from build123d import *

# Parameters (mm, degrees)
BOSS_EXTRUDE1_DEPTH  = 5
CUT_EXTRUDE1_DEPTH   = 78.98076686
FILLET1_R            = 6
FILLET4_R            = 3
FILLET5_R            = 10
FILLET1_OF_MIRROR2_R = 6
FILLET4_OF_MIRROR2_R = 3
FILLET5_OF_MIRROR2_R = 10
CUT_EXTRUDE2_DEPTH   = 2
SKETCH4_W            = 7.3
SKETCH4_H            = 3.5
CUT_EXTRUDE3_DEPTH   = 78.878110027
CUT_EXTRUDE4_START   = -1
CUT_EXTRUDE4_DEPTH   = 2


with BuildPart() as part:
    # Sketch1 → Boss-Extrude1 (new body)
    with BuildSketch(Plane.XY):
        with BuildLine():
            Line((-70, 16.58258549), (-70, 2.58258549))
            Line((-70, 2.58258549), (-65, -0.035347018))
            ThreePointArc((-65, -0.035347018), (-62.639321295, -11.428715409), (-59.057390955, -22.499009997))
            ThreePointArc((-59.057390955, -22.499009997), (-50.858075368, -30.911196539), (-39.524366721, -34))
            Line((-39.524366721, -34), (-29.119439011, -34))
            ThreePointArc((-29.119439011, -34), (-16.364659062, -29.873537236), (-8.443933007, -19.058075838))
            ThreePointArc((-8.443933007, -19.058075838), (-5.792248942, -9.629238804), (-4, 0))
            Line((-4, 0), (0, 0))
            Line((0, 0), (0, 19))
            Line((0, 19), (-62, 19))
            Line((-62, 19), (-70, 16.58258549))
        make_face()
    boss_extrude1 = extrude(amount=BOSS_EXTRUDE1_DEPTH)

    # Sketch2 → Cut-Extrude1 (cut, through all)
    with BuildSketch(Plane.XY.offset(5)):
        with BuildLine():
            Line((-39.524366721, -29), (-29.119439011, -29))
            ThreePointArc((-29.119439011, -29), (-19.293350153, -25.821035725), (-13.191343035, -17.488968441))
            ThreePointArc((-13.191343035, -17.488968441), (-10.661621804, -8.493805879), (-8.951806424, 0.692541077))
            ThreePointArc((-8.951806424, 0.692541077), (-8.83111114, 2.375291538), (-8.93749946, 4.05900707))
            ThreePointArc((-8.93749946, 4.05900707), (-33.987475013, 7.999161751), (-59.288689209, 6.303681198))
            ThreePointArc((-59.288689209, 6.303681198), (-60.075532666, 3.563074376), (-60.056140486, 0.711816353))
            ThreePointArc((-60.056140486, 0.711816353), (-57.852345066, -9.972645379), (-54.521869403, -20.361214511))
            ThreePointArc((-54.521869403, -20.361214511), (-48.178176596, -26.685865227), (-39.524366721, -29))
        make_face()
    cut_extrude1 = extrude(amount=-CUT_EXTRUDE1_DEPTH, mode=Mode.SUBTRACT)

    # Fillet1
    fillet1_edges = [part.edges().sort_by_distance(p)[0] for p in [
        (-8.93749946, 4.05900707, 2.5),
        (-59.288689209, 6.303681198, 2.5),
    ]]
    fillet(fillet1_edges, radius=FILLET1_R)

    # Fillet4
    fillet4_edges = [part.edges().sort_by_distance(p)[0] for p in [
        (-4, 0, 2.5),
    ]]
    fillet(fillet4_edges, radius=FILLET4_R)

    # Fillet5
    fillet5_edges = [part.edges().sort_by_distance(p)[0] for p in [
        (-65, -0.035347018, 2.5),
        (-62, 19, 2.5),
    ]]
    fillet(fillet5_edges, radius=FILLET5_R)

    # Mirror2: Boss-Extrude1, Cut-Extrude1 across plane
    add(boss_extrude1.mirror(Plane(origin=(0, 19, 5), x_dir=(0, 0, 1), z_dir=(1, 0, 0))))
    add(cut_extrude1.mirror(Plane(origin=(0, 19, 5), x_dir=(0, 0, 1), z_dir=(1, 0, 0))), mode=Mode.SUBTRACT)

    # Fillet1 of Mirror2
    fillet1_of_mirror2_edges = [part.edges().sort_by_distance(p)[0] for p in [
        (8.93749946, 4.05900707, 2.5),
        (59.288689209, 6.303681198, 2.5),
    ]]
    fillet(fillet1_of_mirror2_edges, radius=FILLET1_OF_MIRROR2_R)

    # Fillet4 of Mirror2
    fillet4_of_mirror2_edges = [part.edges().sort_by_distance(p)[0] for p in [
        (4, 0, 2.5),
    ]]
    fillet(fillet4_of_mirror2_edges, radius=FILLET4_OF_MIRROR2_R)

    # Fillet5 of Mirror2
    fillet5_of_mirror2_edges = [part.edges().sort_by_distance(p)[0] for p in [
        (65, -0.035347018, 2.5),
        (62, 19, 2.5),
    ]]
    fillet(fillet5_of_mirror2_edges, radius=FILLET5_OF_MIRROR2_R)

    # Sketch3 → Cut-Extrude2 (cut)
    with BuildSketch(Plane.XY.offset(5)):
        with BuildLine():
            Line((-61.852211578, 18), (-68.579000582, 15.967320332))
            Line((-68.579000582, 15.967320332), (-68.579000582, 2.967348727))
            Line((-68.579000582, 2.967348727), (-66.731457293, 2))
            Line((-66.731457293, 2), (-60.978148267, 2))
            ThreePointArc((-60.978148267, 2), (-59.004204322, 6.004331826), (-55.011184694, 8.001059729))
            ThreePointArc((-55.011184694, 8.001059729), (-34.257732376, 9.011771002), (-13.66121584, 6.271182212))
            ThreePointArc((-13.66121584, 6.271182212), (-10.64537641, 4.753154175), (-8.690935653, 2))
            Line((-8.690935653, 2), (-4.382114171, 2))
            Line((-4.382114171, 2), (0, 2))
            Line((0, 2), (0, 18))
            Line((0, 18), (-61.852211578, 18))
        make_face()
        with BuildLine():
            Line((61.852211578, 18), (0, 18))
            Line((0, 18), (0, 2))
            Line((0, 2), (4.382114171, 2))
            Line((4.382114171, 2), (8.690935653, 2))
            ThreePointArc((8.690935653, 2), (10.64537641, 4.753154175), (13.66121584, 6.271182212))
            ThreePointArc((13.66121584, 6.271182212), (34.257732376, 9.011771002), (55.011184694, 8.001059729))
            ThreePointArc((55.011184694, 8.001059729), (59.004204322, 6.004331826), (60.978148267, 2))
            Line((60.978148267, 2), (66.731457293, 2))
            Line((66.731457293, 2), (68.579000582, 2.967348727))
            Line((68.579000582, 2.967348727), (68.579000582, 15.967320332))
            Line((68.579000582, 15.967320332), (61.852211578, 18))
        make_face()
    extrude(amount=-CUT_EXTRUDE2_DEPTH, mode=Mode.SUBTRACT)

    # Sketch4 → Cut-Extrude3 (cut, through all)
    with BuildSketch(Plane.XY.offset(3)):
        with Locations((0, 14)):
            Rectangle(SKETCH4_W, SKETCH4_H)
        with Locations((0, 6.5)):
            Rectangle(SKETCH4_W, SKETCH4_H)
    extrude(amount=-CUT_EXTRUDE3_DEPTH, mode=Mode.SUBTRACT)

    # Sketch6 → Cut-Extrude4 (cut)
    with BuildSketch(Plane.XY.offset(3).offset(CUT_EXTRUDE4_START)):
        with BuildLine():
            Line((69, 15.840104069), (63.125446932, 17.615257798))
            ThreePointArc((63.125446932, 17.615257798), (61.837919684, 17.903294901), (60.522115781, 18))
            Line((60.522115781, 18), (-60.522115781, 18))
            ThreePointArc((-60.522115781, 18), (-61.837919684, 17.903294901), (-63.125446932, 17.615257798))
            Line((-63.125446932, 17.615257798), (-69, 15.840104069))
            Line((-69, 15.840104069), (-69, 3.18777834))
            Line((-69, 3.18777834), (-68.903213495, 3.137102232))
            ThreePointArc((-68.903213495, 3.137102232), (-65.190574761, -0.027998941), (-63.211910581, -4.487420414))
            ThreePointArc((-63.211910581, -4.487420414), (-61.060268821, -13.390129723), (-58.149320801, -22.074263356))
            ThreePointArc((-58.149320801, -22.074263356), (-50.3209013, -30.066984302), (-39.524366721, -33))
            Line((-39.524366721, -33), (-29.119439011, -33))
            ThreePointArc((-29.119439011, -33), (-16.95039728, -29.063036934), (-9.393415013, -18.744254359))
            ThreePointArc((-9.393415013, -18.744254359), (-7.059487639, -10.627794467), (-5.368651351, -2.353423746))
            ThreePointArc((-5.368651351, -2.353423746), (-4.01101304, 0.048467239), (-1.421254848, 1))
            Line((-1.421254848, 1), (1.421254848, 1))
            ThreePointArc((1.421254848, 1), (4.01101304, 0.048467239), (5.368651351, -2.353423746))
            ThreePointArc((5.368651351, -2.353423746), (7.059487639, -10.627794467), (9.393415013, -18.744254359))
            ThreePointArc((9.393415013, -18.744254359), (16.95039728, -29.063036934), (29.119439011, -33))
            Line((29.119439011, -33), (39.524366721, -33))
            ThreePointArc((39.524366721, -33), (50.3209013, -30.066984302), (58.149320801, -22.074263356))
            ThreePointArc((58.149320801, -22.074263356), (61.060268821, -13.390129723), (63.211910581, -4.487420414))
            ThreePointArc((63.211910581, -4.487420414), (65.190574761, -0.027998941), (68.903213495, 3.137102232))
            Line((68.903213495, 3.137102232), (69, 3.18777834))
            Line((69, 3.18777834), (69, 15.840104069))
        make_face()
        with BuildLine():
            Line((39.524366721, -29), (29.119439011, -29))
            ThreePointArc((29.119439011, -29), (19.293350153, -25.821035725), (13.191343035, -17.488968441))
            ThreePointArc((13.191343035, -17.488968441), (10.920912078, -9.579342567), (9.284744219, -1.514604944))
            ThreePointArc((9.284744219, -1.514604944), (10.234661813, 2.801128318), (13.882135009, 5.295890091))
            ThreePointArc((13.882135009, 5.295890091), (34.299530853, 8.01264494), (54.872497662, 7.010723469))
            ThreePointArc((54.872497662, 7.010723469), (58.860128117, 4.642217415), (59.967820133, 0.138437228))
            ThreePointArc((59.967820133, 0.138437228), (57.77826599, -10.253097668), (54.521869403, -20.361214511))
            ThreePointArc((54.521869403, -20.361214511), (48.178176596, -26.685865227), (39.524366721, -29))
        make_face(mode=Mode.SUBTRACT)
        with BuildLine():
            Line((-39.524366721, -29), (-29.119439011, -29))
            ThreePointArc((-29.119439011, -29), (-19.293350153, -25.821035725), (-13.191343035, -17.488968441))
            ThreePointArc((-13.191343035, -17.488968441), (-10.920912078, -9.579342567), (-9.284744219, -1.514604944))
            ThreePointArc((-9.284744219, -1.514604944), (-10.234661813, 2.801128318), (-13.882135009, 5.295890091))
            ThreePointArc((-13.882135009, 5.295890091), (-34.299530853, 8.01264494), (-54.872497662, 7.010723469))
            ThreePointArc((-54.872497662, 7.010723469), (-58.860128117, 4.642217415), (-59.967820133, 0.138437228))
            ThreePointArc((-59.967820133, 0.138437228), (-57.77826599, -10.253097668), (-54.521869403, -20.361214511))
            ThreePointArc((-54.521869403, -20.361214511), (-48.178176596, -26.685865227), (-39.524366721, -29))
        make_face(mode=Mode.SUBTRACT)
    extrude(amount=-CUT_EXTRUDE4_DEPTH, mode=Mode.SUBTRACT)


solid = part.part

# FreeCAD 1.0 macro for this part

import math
import FreeCAD as App
import Part
import Sketcher

V = App.Vector


def edges_at(feature, points):
    """Names of the edges that pass closest to the given points."""
    edges = feature.Shape.Edges
    near = lambda p: min(range(len(edges)), key=lambda i: edges[i].distToShape(Part.Vertex(*p))[0])
    return sorted({f"Edge{near(p) + 1}" for p in points})


def add_polygon(sketch, points):
    """Adds a closed chain of lines whose ends are joined by coincident constraints."""
    first, n = sketch.GeometryCount, len(points)
    for a, b in zip(points, points[1:] + points[:1]):
        sketch.addGeometry(Part.LineSegment(App.Vector(*a, 0), App.Vector(*b, 0)), False)
    for i in range(n):
        sketch.addConstraint(Sketcher.Constraint("Coincident", first + i, 2, first + (i + 1) % n, 1))

doc = App.newDocument("Part")
body = doc.addObject("PartDesign::Body", "Body")

sketch1 = doc.addObject("Sketcher::SketchObject", "Sketch")
body.addObject(sketch1)
sketch1.AttachmentSupport = (doc.XY_Plane, [""])
sketch1.MapMode = "FlatFace"
sketch1.addGeometry([
    Part.LineSegment(V(-70, 16.582585, 0), V(-70, 2.582585, 0)),
    Part.LineSegment(V(-70, 2.582585, 0), V(-65, -0.035347, 0)),
    Part.ArcOfCircle(Part.Circle(V(40.964964, 15.979093, 0), V(0, 0, 1), 107.168259), math.radians(-171.405949), math.radians(-158.958514)),
    Part.ArcOfCircle(Part.Circle(V(-39.524367, -11.662279, 0), V(0, 0, 1), 22.337721), math.radians(-150.978915), math.radians(-90)),
    Part.LineSegment(V(-39.524367, -34, 0), V(-29.119439, -34, 0)),
    Part.ArcOfCircle(Part.Circle(V(-29.119439, -12.224436, 0), V(0, 0, 1), 21.775564), math.radians(-90), math.radians(-18.289682)),
    Part.ArcOfCircle(Part.Circle(V(-111.660881, 15.057047, 0), V(0, 0, 1), 108.708693), math.radians(-18.289682), math.radians(-7.961532)),
    Part.LineSegment(V(-4, 0, 0), V(0, 0, 0)),
    Part.LineSegment(V(0, 0, 0), V(0, 19, 0)),
    Part.LineSegment(V(0, 19, 0), V(-62, 19, 0)),
    Part.LineSegment(V(-62, 19, 0), V(-70, 16.582585, 0)),
], False)
sketch1.addConstraint([
    Sketcher.Constraint("Coincident", 0, 2, 1, 1),
    Sketcher.Constraint("Coincident", 1, 2, 2, 1),
    Sketcher.Constraint("Coincident", 2, 2, 3, 1),
    Sketcher.Constraint("Tangent", 3, 2, 4, 1),
    Sketcher.Constraint("Tangent", 4, 2, 5, 1),
    Sketcher.Constraint("Tangent", 5, 2, 6, 1),
    Sketcher.Constraint("Coincident", 6, 2, 7, 1),
    Sketcher.Constraint("Coincident", 7, 2, 8, 1),
    Sketcher.Constraint("Coincident", 8, 2, 9, 1),
    Sketcher.Constraint("Coincident", 9, 2, 10, 1),
    Sketcher.Constraint("Coincident", 10, 2, 0, 1),
    Sketcher.Constraint("Vertical", 0),
    Sketcher.Constraint("Horizontal", 4),
    Sketcher.Constraint("Horizontal", 7),
    Sketcher.Constraint("Vertical", 8),
    Sketcher.Constraint("Horizontal", 9),
    Sketcher.Constraint("Coincident", 7, 2, -1, 1),
    Sketcher.Constraint("DistanceX", 7, 1, 7, 2, 4.0),
    Sketcher.Constraint("DistanceX", 9, 2, 9, 1, 62.0),
    Sketcher.Constraint("DistanceY", 0, 2, 0, 1, 14.0),
    Sketcher.Constraint("DistanceY", 8, 1, 8, 2, 19.0),
    Sketcher.Constraint("DistanceX", 0, 2, -1, 1, 70.0),
    Sketcher.Constraint("DistanceX", 1, 2, -1, 1, 65.0),
    Sketcher.Constraint("DistanceY", 3, 2, -1, 1, 34.0),
    Sketcher.Constraint("Radius", 2, 107.168259),
    Sketcher.Constraint("Radius", 3, 22.337721),
    Sketcher.Constraint("Radius", 5, 21.775564),
    Sketcher.Constraint("Radius", 6, 108.708693),
    Sketcher.Constraint("DistanceX", 4, 1, 4, 2, 10.404928),
    Sketcher.Constraint("DistanceX", 5, 3, -1, 1, 29.119439),
    Sketcher.Constraint("DistanceX", 2, 2, -1, 1, 59.057391),
    Sketcher.Constraint("DistanceX", 3, 3, 2, 3, 80.48933),
    Sketcher.Constraint("DistanceY", 5, 3, 0, 2, 14.807022),
])
pad1 = doc.addObject("PartDesign::Pad", "Pad")
body.addObject(pad1)
pad1.Profile = sketch1
pad1.Length = 5

sketch2 = doc.addObject("Sketcher::SketchObject", "Sketch001")
body.addObject(sketch2)
sketch2.AttachmentSupport = (doc.XY_Plane, [""])
sketch2.MapMode = "FlatFace"
sketch2.AttachmentOffset = App.Placement(V(0, 0, 5), App.Rotation())
sketch2.addGeometry([
    Part.LineSegment(V(-39.524367, -29, 0), V(-29.119439, -29, 0)),
    Part.ArcOfCircle(Part.Circle(V(-29.119439, -12.224436, 0), V(0, 0, 1), 16.775564), math.radians(-90), math.radians(-18.289682)),
    Part.ArcOfCircle(Part.Circle(V(-111.660881, 15.057047, 0), V(0, 0, 1), 103.708693), math.radians(-18.289682), math.radians(-7.961532)),
    Part.ArcOfCircle(Part.Circle(V(-21.364667, 2.428557, 0), V(0, 0, 1), 12.533669), math.radians(-7.961532), math.radians(7.474539)),
    Part.ArcOfCircle(Part.Circle(V(-39.064006, -105.874545, 0), V(0, 0, 1), 113.986807), math.radians(74.674745), math.radians(100.220102)),
    Part.ArcOfCircle(Part.Circle(V(-50.178002, 2.204695, 0), V(0, 0, 1), 9.990311), math.radians(155.776561), math.radians(188.594051)),
    Part.ArcOfCircle(Part.Circle(V(40.964964, 15.979093, 0), V(0, 0, 1), 102.168259), math.radians(-171.405949), math.radians(-159.164214)),
    Part.ArcOfCircle(Part.Circle(V(-39.524367, -11.662279, 0), V(0, 0, 1), 17.337721), math.radians(-149.88517), math.radians(-90)),
], False)
sketch2.addConstraint([
    Sketcher.Constraint("Coincident", 0, 2, 1, 1),
    Sketcher.Constraint("Coincident", 1, 2, 2, 1),
    Sketcher.Constraint("Coincident", 2, 2, 3, 1),
    Sketcher.Constraint("Coincident", 3, 2, 4, 1),
    Sketcher.Constraint("Coincident", 4, 2, 5, 1),
    Sketcher.Constraint("Coincident", 5, 2, 6, 1),
    Sketcher.Constraint("Coincident", 6, 2, 7, 1),
    Sketcher.Constraint("Coincident", 7, 2, 0, 1),
    Sketcher.Constraint("Horizontal", 0),
    Sketcher.Constraint("DistanceY", 0, 2, -1, 1, 29.0),
    Sketcher.Constraint("Radius", 3, 12.533669),
    Sketcher.Constraint("Radius", 5, 9.990311),
    Sketcher.Constraint("Radius", 6, 102.168259),
    Sketcher.Constraint("Radius", 7, 17.337721),
    Sketcher.Constraint("DistanceX", 5, 3, -1, 1, 50.178002),
    Sketcher.Constraint("Radius", 1, 16.775564),
    Sketcher.Constraint("Radius", 2, 103.708693),
    Sketcher.Constraint("Radius", 4, 113.986807),
    Sketcher.Constraint("DistanceX", 3, 2, -1, 1, 8.937499),
    Sketcher.Constraint("DistanceX", 7, 3, 3, 3, 18.1597),
    Sketcher.Constraint("DistanceX", 5, 2, 1, 3, 30.936701),
    Sketcher.Constraint("DistanceX", 0, 1, 0, 2, 10.404928),
    Sketcher.Constraint("DistanceX", 1, 3, -1, 1, 29.119439),
    Sketcher.Constraint("DistanceX", 2, 3, -1, 1, 111.660881),
    Sketcher.Constraint("DistanceX", 0, 2, -1, 1, 29.119439),
    Sketcher.Constraint("DistanceY", 1, 2, -1, 1, 17.488968),
    Sketcher.Constraint("DistanceY", -1, 1, 2, 2, 0.692541),
    Sketcher.Constraint("DistanceX", 4, 2, -1, 1, 59.288689),
    Sketcher.Constraint("DistanceY", -1, 1, 4, 2, 6.303681),
    Sketcher.Constraint("DistanceX", 6, 2, -1, 1, 54.521869),
    Sketcher.Constraint("DistanceX", 1, 3, 3, 3, 7.754772),
])
pocket1 = doc.addObject("PartDesign::Pocket", "Pocket")
body.addObject(pocket1)
pocket1.Profile = sketch2
pocket1.Type = "ThroughAll"
doc.recompute()

fillet = doc.addObject("PartDesign::Fillet", "Fillet")
body.addObject(fillet)
fillet.Base = (pocket1, edges_at(pocket1, [(-8.937, 4.059, 2.5), (-59.289, 6.304, 2.5)]))
fillet.Radius = 6
doc.recompute()

fillet2 = doc.addObject("PartDesign::Fillet", "Fillet001")
body.addObject(fillet2)
fillet2.Base = (fillet, edges_at(fillet, [(-4, 0, 2.5)]))
fillet2.Radius = 3
doc.recompute()

fillet3 = doc.addObject("PartDesign::Fillet", "Fillet002")
body.addObject(fillet3)
fillet3.Base = (fillet2, edges_at(fillet2, [(-65, -0.035, 2.5), (-62, 19, 2.5)]))
fillet3.Radius = 10
doc.recompute()

mirrored = doc.addObject("PartDesign::Mirrored", "Mirrored")
body.addObject(mirrored)
mirrored.Originals = [pad1, pocket1]
mirrored.MirrorPlane = (doc.YZ_Plane, [""])
body.Tip = mirrored
doc.recompute()

fillet4 = doc.addObject("PartDesign::Fillet", "Fillet003")
body.addObject(fillet4)
fillet4.Base = (mirrored, edges_at(mirrored, [(8.937, 4.059, 2.5), (59.289, 6.304, 2.5)]))
fillet4.Radius = 6
doc.recompute()

fillet5 = doc.addObject("PartDesign::Fillet", "Fillet004")
body.addObject(fillet5)
fillet5.Base = (fillet4, edges_at(fillet4, [(4, 0, 2.5)]))
fillet5.Radius = 3
doc.recompute()

fillet6 = doc.addObject("PartDesign::Fillet", "Fillet005")
body.addObject(fillet6)
fillet6.Base = (fillet5, edges_at(fillet5, [(65, -0.035, 2.5), (62, 19, 2.5)]))
fillet6.Radius = 10

sketch3 = doc.addObject("Sketcher::SketchObject", "Sketch002")
body.addObject(sketch3)
sketch3.AttachmentSupport = (doc.XY_Plane, [""])
sketch3.MapMode = "FlatFace"
sketch3.AttachmentOffset = App.Placement(V(0, 0, 5), App.Rotation())
sketch3.addGeometry([
    Part.LineSegment(V(-61.852212, 18, 0), V(-68.579001, 15.96732, 0)),
    Part.LineSegment(V(-68.579001, 15.96732, 0), V(-68.579001, 2.967349, 0)),
    Part.LineSegment(V(-68.579001, 2.967349, 0), V(-66.731457, 2, 0)),
    Part.LineSegment(V(-66.731457, 2, 0), V(-60.978148, 2, 0)),
    Part.ArcOfCircle(Part.Circle(V(-54.040375, 1.068706, 0), V(0, 0, 1), 7), math.radians(97.971878), math.radians(172.354586)),
    Part.ArcOfCircle(Part.Circle(V(-39.064006, -105.874545, 0), V(0, 0, 1), 114.986807), math.radians(77.236974), math.radians(97.971878)),
    Part.ArcOfCircle(Part.Circle(V(-15.20765, -0.555863, 0), V(0, 0, 1), 7), math.radians(21.415167), math.radians(77.236974)),
    Part.LineSegment(V(-8.690936, 2, 0), V(8.690936, 2, 0)),
    Part.ArcOfCircle(Part.Circle(V(15.20765, -0.555863, 0), V(0, 0, 1), 7), math.radians(102.763026), math.radians(158.584833)),
    Part.ArcOfCircle(Part.Circle(V(39.064006, -105.874545, 0), V(0, 0, 1), 114.986807), math.radians(82.028122), math.radians(102.763026)),
    Part.ArcOfCircle(Part.Circle(V(54.040375, 1.068706, 0), V(0, 0, 1), 7), math.radians(7.645414), math.radians(82.028122)),
    Part.LineSegment(V(60.978148, 2, 0), V(66.731457, 2, 0)),
    Part.LineSegment(V(66.731457, 2, 0), V(68.579001, 2.967349, 0)),
    Part.LineSegment(V(68.579001, 2.967349, 0), V(68.579001, 15.96732, 0)),
    Part.LineSegment(V(68.579001, 15.96732, 0), V(61.852212, 18, 0)),
    Part.LineSegment(V(61.852212, 18, 0), V(-61.852212, 18, 0)),
], False)
sketch3.addConstraint([
    Sketcher.Constraint("Coincident", 0, 2, 1, 1),
    Sketcher.Constraint("Coincident", 1, 2, 2, 1),
    Sketcher.Constraint("Coincident", 2, 2, 3, 1),
    Sketcher.Constraint("Coincident", 3, 2, 4, 2),
    Sketcher.Constraint("Tangent", 4, 1, 5, 2),
    Sketcher.Constraint("Tangent", 5, 1, 6, 2),
    Sketcher.Constraint("Coincident", 6, 1, 7, 1),
    Sketcher.Constraint("Coincident", 7, 2, 8, 2),
    Sketcher.Constraint("Tangent", 8, 1, 9, 2),
    Sketcher.Constraint("Tangent", 9, 1, 10, 2),
    Sketcher.Constraint("Coincident", 10, 1, 11, 1),
    Sketcher.Constraint("Coincident", 11, 2, 12, 1),
    Sketcher.Constraint("Coincident", 12, 2, 13, 1),
    Sketcher.Constraint("Coincident", 13, 2, 14, 1),
    Sketcher.Constraint("Coincident", 14, 2, 15, 1),
    Sketcher.Constraint("Coincident", 15, 2, 0, 1),
    Sketcher.Constraint("Vertical", 1),
    Sketcher.Constraint("Horizontal", 3),
    Sketcher.Constraint("Horizontal", 7),
    Sketcher.Constraint("Horizontal", 11),
    Sketcher.Constraint("Vertical", 13),
    Sketcher.Constraint("Horizontal", 15),
    Sketcher.Constraint("Equal", 4, 6),
    Sketcher.Constraint("Equal", 6, 8),
    Sketcher.Constraint("Equal", 5, 9),
    Sketcher.Constraint("Equal", 8, 10),
    Sketcher.Constraint("Symmetric", 6, 3, 8, 3, -2),
    Sketcher.Constraint("Symmetric", 4, 3, 10, 3, -2),
    Sketcher.Constraint("Symmetric", 2, 2, 11, 2, -2),
    Sketcher.Constraint("Symmetric", 1, 2, 12, 2, -2),
    Sketcher.Constraint("Horizontal", 3, 2, 6, 1),
    Sketcher.Constraint("Horizontal", 0, 2, 13, 2),
    Sketcher.Constraint("Equal", 0, 14),
    Sketcher.Constraint("Radius", 4, 7.0),
    Sketcher.Constraint("DistanceY", -1, 1, 2, 2, 2.0),
    Sketcher.Constraint("DistanceY", -1, 1, 14, 2, 18.0),
    Sketcher.Constraint("DistanceX", 0, 2, -1, 1, 68.579001),
    Sketcher.Constraint("Radius", 5, 114.986807),
    Sketcher.Constraint("DistanceX", 3, 1, 3, 2, 5.753309),
    Sketcher.Constraint("DistanceX", 7, 1, 7, 2, 17.381871),
    Sketcher.Constraint("DistanceY", 1, 2, 1, 1, 12.999972),
    Sketcher.Constraint("DistanceX", 6, 3, 8, 3, 30.4153),
    Sketcher.Constraint("DistanceX", 3, 2, 6, 3, 45.770498),
    Sketcher.Constraint("Distance", 2, 2.085469),
    Sketcher.Constraint("DistanceX", 15, 2, 15, 1, 123.704423),
    Sketcher.Constraint("DistanceY", -1, 1, 4, 1, 8.00106),
])
pocket2 = doc.addObject("PartDesign::Pocket", "Pocket001")
body.addObject(pocket2)
pocket2.Profile = sketch3
pocket2.Length = 2

sketch4 = doc.addObject("Sketcher::SketchObject", "Sketch003")
body.addObject(sketch4)
sketch4.AttachmentSupport = (doc.XY_Plane, [""])
sketch4.MapMode = "FlatFace"
sketch4.AttachmentOffset = App.Placement(V(0, 0, 3), App.Rotation())
add_polygon(sketch4, [(-3.65, 15.75), (-3.65, 12.25), (3.65, 12.25), (3.65, 15.75)])
add_polygon(sketch4, [(-3.65, 8.25), (-3.65, 4.75), (3.65, 4.75), (3.65, 8.25)])
sketch4.addConstraint([
    Sketcher.Constraint("Vertical", 0),
    Sketcher.Constraint("Horizontal", 1),
    Sketcher.Constraint("Vertical", 2),
    Sketcher.Constraint("Horizontal", 3),
    Sketcher.Constraint("Vertical", 4),
    Sketcher.Constraint("Horizontal", 5),
    Sketcher.Constraint("Vertical", 6),
    Sketcher.Constraint("Horizontal", 7),
    Sketcher.Constraint("Vertical", 3, 2, 4, 2),
    Sketcher.Constraint("Vertical", 2, 2, 5, 2),
    Sketcher.Constraint("Equal", 2, 4),
    Sketcher.Constraint("DistanceX", 1, 1, 1, 2, 7.3),
    Sketcher.Constraint("DistanceY", 0, 2, 0, 1, 3.5),
    Sketcher.Constraint("DistanceY", 4, 2, 3, 2, 11.0),
    Sketcher.Constraint("DistanceX", 0, 2, -1, 1, 3.65),
    Sketcher.Constraint("DistanceY", -1, 1, 0, 2, 12.25),
])
pocket3 = doc.addObject("PartDesign::Pocket", "Pocket002")
body.addObject(pocket3)
pocket3.Profile = sketch4
pocket3.Type = "ThroughAll"

sketch5 = doc.addObject("Sketcher::SketchObject", "Sketch004")
body.addObject(sketch5)
sketch5.AttachmentSupport = (doc.XY_Plane, [""])
sketch5.MapMode = "FlatFace"
sketch5.AttachmentOffset = App.Placement(V(0, 0, 2), App.Rotation())
sketch5.addGeometry([
    Part.LineSegment(V(69, 15.840104, 0), V(63.125447, 17.615258, 0)),
    Part.ArcOfCircle(Part.Circle(V(60.522116, 9, 0), V(0, 0, 1), 9), math.radians(73.1864), math.radians(90)),
    Part.LineSegment(V(60.522116, 18, 0), V(-60.522116, 18, 0)),
    Part.ArcOfCircle(Part.Circle(V(-60.522116, 9, 0), V(0, 0, 1), 9), math.radians(90), math.radians(106.8136)),
    Part.LineSegment(V(-63.125447, 17.615258, 0), V(-69, 15.840104, 0)),
    Part.LineSegment(V(-69, 15.840104, 0), V(-69, 3.187778, 0)),
    Part.LineSegment(V(-69, 3.187778, 0), V(-68.903213, 3.137102, 0)),
    Part.ArcOfCircle(Part.Circle(V(-74.005585, -6.607938, 0), V(0, 0, 1), 11), math.radians(11.114734), math.radians(62.364053)),
    Part.ArcOfCircle(Part.Circle(V(40.964964, 15.979093, 0), V(0, 0, 1), 106.168259), math.radians(-168.885266), math.radians(-158.9965)),
    Part.ArcOfCircle(Part.Circle(V(-39.524367, -11.662279, 0), V(0, 0, 1), 21.337721), math.radians(-150.793322), math.radians(-90)),
    Part.LineSegment(V(-39.524367, -33, 0), V(-29.119439, -33, 0)),
    Part.ArcOfCircle(Part.Circle(V(-29.119439, -12.224436, 0), V(0, 0, 1), 20.775564), math.radians(-90), math.radians(-18.289682)),
    Part.ArcOfCircle(Part.Circle(V(-111.660881, 15.057047, 0), V(0, 0, 1), 107.708693), math.radians(-18.289682), math.radians(-9.302336)),
    Part.ArcOfCircle(Part.Circle(V(-1.421255, -3, 0), V(0, 0, 1), 4), math.radians(90), math.radians(170.697664)),
    Part.LineSegment(V(-1.421255, 1, 0), V(1.421255, 1, 0)),
    Part.ArcOfCircle(Part.Circle(V(1.421255, -3, 0), V(0, 0, 1), 4), math.radians(9.302336), math.radians(90)),
    Part.ArcOfCircle(Part.Circle(V(111.660881, 15.057047, 0), V(0, 0, 1), 107.708693), math.radians(-170.697664), math.radians(-161.710318)),
    Part.ArcOfCircle(Part.Circle(V(29.119439, -12.224436, 0), V(0, 0, 1), 20.775564), math.radians(-161.710318), math.radians(-90)),
    Part.LineSegment(V(29.119439, -33, 0), V(39.524367, -33, 0)),
    Part.ArcOfCircle(Part.Circle(V(39.524367, -11.662279, 0), V(0, 0, 1), 21.337721), math.radians(-90), math.radians(-29.206678)),
    Part.ArcOfCircle(Part.Circle(V(-40.964964, 15.979093, 0), V(0, 0, 1), 106.168259), math.radians(-21.0035), math.radians(-11.114734)),
    Part.ArcOfCircle(Part.Circle(V(74.005585, -6.607938, 0), V(0, 0, 1), 11), math.radians(117.635947), math.radians(168.885266)),
    Part.LineSegment(V(68.903213, 3.137102, 0), V(69, 3.187778, 0)),
    Part.LineSegment(V(69, 3.187778, 0), V(69, 15.840104, 0)),
    Part.LineSegment(V(-29.119439, -29, 0), V(-39.524367, -29, 0)),
    Part.ArcOfCircle(Part.Circle(V(-39.524367, -11.662279, 0), V(0, 0, 1), 17.337721), math.radians(-149.88517), math.radians(-90)),
    Part.ArcOfCircle(Part.Circle(V(40.964964, 15.979093, 0), V(0, 0, 1), 102.168259), math.radians(-171.080607), math.radians(-159.164214)),
    Part.ArcOfCircle(Part.Circle(V(-54.040375, 1.068706, 0), V(0, 0, 1), 6), math.radians(97.971878), math.radians(188.919393)),
    Part.ArcOfCircle(Part.Circle(V(-39.064006, -105.874545, 0), V(0, 0, 1), 113.986807), math.radians(77.236974), math.radians(97.971878)),
    Part.ArcOfCircle(Part.Circle(V(-15.20765, -0.555863, 0), V(0, 0, 1), 6), math.radians(-9.19473), math.radians(77.236974)),
    Part.ArcOfCircle(Part.Circle(V(-111.660881, 15.057047, 0), V(0, 0, 1), 103.708693), math.radians(-18.289682), math.radians(-9.19473)),
    Part.ArcOfCircle(Part.Circle(V(-29.119439, -12.224436, 0), V(0, 0, 1), 16.775564), math.radians(-90), math.radians(-18.289682)),
    Part.ArcOfCircle(Part.Circle(V(39.524367, -11.662279, 0), V(0, 0, 1), 17.337721), math.radians(-90), math.radians(-30.11483)),
    Part.LineSegment(V(39.524367, -29, 0), V(29.119439, -29, 0)),
    Part.ArcOfCircle(Part.Circle(V(29.119439, -12.224436, 0), V(0, 0, 1), 16.775564), math.radians(-161.710318), math.radians(-90)),
    Part.ArcOfCircle(Part.Circle(V(111.660881, 15.057047, 0), V(0, 0, 1), 103.708693), math.radians(-170.80527), math.radians(-161.710318)),
    Part.ArcOfCircle(Part.Circle(V(15.20765, -0.555863, 0), V(0, 0, 1), 6), math.radians(102.763026), math.radians(189.19473)),
    Part.ArcOfCircle(Part.Circle(V(39.064006, -105.874545, 0), V(0, 0, 1), 113.986807), math.radians(82.028122), math.radians(102.763026)),
    Part.ArcOfCircle(Part.Circle(V(54.040375, 1.068706, 0), V(0, 0, 1), 6), math.radians(-8.919393), math.radians(82.028122)),
    Part.ArcOfCircle(Part.Circle(V(-40.964964, 15.979093, 0), V(0, 0, 1), 102.168259), math.radians(-20.835786), math.radians(-8.919393)),
], False)
sketch5.addConstraint([
    Sketcher.Constraint("Tangent", 0, 2, 1, 1),
    Sketcher.Constraint("Tangent", 1, 2, 2, 1),
    Sketcher.Constraint("Tangent", 2, 2, 3, 1),
    Sketcher.Constraint("Tangent", 3, 2, 4, 1),
    Sketcher.Constraint("Coincident", 4, 2, 5, 1),
    Sketcher.Constraint("Coincident", 5, 2, 6, 1),
    Sketcher.Constraint("Tangent", 6, 2, 7, 2),
    Sketcher.Constraint("Tangent", 7, 1, 8, 1),
    Sketcher.Constraint("Coincident", 8, 2, 9, 1),
    Sketcher.Constraint("Tangent", 9, 2, 10, 1),
    Sketcher.Constraint("Tangent", 10, 2, 11, 1),
    Sketcher.Constraint("Tangent", 11, 2, 12, 1),
    Sketcher.Constraint("Tangent", 12, 2, 13, 2),
    Sketcher.Constraint("Tangent", 13, 1, 14, 1),
    Sketcher.Constraint("Tangent", 14, 2, 15, 2),
    Sketcher.Constraint("Tangent", 15, 1, 16, 1),
    Sketcher.Constraint("Tangent", 16, 2, 17, 1),
    Sketcher.Constraint("Tangent", 17, 2, 18, 1),
    Sketcher.Constraint("Tangent", 18, 2, 19, 1),
    Sketcher.Constraint("Coincident", 19, 2, 20, 1),
    Sketcher.Constraint("Tangent", 20, 2, 21, 2),
    Sketcher.Constraint("Tangent", 21, 1, 22, 1),
    Sketcher.Constraint("Coincident", 22, 2, 23, 1),
    Sketcher.Constraint("Coincident", 23, 2, 0, 1),
    Sketcher.Constraint("Tangent", 24, 2, 25, 2),
    Sketcher.Constraint("Coincident", 25, 1, 26, 2),
    Sketcher.Constraint("Tangent", 26, 1, 27, 2),
    Sketcher.Constraint("Tangent", 27, 1, 28, 2),
    Sketcher.Constraint("Tangent", 28, 1, 29, 2),
    Sketcher.Constraint("Tangent", 29, 1, 30, 2),
    Sketcher.Constraint("Tangent", 30, 1, 31, 2),
    Sketcher.Constraint("Tangent", 31, 1, 24, 1),
    Sketcher.Constraint("Tangent", 32, 1, 33, 1),
    Sketcher.Constraint("Tangent", 33, 2, 34, 2),
    Sketcher.Constraint("Tangent", 34, 1, 35, 2),
    Sketcher.Constraint("Tangent", 35, 1, 36, 2),
    Sketcher.Constraint("Tangent", 36, 1, 37, 2),
    Sketcher.Constraint("Tangent", 37, 1, 38, 2),
    Sketcher.Constraint("Tangent", 38, 1, 39, 2),
    Sketcher.Constraint("Coincident", 39, 1, 32, 2),
    Sketcher.Constraint("Horizontal", 2),
    Sketcher.Constraint("Vertical", 5),
    Sketcher.Constraint("Horizontal", 10),
    Sketcher.Constraint("Horizontal", 14),
    Sketcher.Constraint("Horizontal", 18),
    Sketcher.Constraint("Vertical", 23),
    Sketcher.Constraint("Horizontal", 24),
    Sketcher.Constraint("Horizontal", 33),
    Sketcher.Constraint("Coincident", 25, 3, 9, 3),
    Sketcher.Constraint("Coincident", 26, 3, 8, 3),
    Sketcher.Constraint("Coincident", 30, 3, 12, 3),
    Sketcher.Constraint("Coincident", 31, 3, 11, 3),
    Sketcher.Constraint("Coincident", 32, 3, 19, 3),
    Sketcher.Constraint("Coincident", 34, 3, 17, 3),
    Sketcher.Constraint("Coincident", 35, 3, 16, 3),
    Sketcher.Constraint("Coincident", 39, 3, 20, 3),
    Sketcher.Constraint("Equal", 1, 3),
    Sketcher.Constraint("Equal", 13, 15),
    Sketcher.Constraint("Equal", 12, 16),
    Sketcher.Constraint("Equal", 11, 17),
    Sketcher.Constraint("Equal", 9, 19),
    Sketcher.Constraint("Equal", 8, 20),
    Sketcher.Constraint("Equal", 7, 21),
    Sketcher.Constraint("Equal", 27, 29),
    Sketcher.Constraint("Equal", 25, 32),
    Sketcher.Constraint("Equal", 29, 36),
    Sketcher.Constraint("Equal", 28, 37),
    Sketcher.Constraint("Equal", 36, 38),
    Sketcher.Constraint("Equal", 26, 39),
    Sketcher.Constraint("Symmetric", 12, 3, 16, 3, -2),
    Sketcher.Constraint("Symmetric", 9, 3, 19, 3, -2),
    Sketcher.Constraint("Symmetric", 8, 3, 20, 3, -2),
    Sketcher.Constraint("Symmetric", 28, 3, 37, 3, -2),
    Sketcher.Constraint("Symmetric", 0, 2, 3, 2, -2),
    Sketcher.Constraint("Symmetric", 6, 2, 21, 1, -2),
    Sketcher.Constraint("Horizontal", 5, 2, 22, 2),
    Sketcher.Constraint("Radius", 1, 9.0),
    Sketcher.Constraint("Radius", 7, 11.0),
    Sketcher.Constraint("Radius", 13, 4.0),
    Sketcher.Constraint("Radius", 27, 6.0),
    Sketcher.Constraint("DistanceY", -1, 1, 1, 3, 9.0),
    Sketcher.Constraint("DistanceY", 13, 3, -1, 1, 3.0),
    Sketcher.Constraint("DistanceX", 4, 2, -1, 1, 69.0),
    Sketcher.Constraint("DistanceY", 9, 2, -1, 1, 33.0),
    Sketcher.Constraint("DistanceY", 24, 2, -1, 1, 29.0),
    Sketcher.Constraint("Radius", 8, 106.168259),
    Sketcher.Constraint("Radius", 9, 21.337721),
    Sketcher.Constraint("Radius", 26, 102.168259),
    Sketcher.Constraint("Radius", 11, 20.775564),
    Sketcher.Constraint("Radius", 12, 107.708693),
    Sketcher.Constraint("Radius", 28, 113.986807),
    Sketcher.Constraint("Distance", 0, 6.1369),
    Sketcher.Constraint("DistanceX", 2, 2, 2, 1, 121.044232),
    Sketcher.Constraint("DistanceX", 14, 1, 14, 2, 2.84251),
    Sketcher.Constraint("Distance", 6, 0.109251),
    Sketcher.Constraint("DistanceX", 10, 1, 10, 2, 10.404928),
    Sketcher.Constraint("DistanceY", 5, 2, 5, 1, 12.652326),
    Sketcher.Constraint("DistanceX", 11, 3, -1, 1, 29.119439),
    Sketcher.Constraint("DistanceX", 29, 3, -1, 1, 15.20765),
    Sketcher.Constraint("DistanceX", 7, 1, -1, 1, 63.211911),
    Sketcher.Constraint("DistanceY", 7, 1, -1, 1, 4.48742),
    Sketcher.Constraint("DistanceX", 26, 1, -1, 1, 59.96782),
])
pocket4 = doc.addObject("PartDesign::Pocket", "Pocket003")
body.addObject(pocket4)
pocket4.Profile = sketch5
pocket4.Length = 2

doc.recompute()
